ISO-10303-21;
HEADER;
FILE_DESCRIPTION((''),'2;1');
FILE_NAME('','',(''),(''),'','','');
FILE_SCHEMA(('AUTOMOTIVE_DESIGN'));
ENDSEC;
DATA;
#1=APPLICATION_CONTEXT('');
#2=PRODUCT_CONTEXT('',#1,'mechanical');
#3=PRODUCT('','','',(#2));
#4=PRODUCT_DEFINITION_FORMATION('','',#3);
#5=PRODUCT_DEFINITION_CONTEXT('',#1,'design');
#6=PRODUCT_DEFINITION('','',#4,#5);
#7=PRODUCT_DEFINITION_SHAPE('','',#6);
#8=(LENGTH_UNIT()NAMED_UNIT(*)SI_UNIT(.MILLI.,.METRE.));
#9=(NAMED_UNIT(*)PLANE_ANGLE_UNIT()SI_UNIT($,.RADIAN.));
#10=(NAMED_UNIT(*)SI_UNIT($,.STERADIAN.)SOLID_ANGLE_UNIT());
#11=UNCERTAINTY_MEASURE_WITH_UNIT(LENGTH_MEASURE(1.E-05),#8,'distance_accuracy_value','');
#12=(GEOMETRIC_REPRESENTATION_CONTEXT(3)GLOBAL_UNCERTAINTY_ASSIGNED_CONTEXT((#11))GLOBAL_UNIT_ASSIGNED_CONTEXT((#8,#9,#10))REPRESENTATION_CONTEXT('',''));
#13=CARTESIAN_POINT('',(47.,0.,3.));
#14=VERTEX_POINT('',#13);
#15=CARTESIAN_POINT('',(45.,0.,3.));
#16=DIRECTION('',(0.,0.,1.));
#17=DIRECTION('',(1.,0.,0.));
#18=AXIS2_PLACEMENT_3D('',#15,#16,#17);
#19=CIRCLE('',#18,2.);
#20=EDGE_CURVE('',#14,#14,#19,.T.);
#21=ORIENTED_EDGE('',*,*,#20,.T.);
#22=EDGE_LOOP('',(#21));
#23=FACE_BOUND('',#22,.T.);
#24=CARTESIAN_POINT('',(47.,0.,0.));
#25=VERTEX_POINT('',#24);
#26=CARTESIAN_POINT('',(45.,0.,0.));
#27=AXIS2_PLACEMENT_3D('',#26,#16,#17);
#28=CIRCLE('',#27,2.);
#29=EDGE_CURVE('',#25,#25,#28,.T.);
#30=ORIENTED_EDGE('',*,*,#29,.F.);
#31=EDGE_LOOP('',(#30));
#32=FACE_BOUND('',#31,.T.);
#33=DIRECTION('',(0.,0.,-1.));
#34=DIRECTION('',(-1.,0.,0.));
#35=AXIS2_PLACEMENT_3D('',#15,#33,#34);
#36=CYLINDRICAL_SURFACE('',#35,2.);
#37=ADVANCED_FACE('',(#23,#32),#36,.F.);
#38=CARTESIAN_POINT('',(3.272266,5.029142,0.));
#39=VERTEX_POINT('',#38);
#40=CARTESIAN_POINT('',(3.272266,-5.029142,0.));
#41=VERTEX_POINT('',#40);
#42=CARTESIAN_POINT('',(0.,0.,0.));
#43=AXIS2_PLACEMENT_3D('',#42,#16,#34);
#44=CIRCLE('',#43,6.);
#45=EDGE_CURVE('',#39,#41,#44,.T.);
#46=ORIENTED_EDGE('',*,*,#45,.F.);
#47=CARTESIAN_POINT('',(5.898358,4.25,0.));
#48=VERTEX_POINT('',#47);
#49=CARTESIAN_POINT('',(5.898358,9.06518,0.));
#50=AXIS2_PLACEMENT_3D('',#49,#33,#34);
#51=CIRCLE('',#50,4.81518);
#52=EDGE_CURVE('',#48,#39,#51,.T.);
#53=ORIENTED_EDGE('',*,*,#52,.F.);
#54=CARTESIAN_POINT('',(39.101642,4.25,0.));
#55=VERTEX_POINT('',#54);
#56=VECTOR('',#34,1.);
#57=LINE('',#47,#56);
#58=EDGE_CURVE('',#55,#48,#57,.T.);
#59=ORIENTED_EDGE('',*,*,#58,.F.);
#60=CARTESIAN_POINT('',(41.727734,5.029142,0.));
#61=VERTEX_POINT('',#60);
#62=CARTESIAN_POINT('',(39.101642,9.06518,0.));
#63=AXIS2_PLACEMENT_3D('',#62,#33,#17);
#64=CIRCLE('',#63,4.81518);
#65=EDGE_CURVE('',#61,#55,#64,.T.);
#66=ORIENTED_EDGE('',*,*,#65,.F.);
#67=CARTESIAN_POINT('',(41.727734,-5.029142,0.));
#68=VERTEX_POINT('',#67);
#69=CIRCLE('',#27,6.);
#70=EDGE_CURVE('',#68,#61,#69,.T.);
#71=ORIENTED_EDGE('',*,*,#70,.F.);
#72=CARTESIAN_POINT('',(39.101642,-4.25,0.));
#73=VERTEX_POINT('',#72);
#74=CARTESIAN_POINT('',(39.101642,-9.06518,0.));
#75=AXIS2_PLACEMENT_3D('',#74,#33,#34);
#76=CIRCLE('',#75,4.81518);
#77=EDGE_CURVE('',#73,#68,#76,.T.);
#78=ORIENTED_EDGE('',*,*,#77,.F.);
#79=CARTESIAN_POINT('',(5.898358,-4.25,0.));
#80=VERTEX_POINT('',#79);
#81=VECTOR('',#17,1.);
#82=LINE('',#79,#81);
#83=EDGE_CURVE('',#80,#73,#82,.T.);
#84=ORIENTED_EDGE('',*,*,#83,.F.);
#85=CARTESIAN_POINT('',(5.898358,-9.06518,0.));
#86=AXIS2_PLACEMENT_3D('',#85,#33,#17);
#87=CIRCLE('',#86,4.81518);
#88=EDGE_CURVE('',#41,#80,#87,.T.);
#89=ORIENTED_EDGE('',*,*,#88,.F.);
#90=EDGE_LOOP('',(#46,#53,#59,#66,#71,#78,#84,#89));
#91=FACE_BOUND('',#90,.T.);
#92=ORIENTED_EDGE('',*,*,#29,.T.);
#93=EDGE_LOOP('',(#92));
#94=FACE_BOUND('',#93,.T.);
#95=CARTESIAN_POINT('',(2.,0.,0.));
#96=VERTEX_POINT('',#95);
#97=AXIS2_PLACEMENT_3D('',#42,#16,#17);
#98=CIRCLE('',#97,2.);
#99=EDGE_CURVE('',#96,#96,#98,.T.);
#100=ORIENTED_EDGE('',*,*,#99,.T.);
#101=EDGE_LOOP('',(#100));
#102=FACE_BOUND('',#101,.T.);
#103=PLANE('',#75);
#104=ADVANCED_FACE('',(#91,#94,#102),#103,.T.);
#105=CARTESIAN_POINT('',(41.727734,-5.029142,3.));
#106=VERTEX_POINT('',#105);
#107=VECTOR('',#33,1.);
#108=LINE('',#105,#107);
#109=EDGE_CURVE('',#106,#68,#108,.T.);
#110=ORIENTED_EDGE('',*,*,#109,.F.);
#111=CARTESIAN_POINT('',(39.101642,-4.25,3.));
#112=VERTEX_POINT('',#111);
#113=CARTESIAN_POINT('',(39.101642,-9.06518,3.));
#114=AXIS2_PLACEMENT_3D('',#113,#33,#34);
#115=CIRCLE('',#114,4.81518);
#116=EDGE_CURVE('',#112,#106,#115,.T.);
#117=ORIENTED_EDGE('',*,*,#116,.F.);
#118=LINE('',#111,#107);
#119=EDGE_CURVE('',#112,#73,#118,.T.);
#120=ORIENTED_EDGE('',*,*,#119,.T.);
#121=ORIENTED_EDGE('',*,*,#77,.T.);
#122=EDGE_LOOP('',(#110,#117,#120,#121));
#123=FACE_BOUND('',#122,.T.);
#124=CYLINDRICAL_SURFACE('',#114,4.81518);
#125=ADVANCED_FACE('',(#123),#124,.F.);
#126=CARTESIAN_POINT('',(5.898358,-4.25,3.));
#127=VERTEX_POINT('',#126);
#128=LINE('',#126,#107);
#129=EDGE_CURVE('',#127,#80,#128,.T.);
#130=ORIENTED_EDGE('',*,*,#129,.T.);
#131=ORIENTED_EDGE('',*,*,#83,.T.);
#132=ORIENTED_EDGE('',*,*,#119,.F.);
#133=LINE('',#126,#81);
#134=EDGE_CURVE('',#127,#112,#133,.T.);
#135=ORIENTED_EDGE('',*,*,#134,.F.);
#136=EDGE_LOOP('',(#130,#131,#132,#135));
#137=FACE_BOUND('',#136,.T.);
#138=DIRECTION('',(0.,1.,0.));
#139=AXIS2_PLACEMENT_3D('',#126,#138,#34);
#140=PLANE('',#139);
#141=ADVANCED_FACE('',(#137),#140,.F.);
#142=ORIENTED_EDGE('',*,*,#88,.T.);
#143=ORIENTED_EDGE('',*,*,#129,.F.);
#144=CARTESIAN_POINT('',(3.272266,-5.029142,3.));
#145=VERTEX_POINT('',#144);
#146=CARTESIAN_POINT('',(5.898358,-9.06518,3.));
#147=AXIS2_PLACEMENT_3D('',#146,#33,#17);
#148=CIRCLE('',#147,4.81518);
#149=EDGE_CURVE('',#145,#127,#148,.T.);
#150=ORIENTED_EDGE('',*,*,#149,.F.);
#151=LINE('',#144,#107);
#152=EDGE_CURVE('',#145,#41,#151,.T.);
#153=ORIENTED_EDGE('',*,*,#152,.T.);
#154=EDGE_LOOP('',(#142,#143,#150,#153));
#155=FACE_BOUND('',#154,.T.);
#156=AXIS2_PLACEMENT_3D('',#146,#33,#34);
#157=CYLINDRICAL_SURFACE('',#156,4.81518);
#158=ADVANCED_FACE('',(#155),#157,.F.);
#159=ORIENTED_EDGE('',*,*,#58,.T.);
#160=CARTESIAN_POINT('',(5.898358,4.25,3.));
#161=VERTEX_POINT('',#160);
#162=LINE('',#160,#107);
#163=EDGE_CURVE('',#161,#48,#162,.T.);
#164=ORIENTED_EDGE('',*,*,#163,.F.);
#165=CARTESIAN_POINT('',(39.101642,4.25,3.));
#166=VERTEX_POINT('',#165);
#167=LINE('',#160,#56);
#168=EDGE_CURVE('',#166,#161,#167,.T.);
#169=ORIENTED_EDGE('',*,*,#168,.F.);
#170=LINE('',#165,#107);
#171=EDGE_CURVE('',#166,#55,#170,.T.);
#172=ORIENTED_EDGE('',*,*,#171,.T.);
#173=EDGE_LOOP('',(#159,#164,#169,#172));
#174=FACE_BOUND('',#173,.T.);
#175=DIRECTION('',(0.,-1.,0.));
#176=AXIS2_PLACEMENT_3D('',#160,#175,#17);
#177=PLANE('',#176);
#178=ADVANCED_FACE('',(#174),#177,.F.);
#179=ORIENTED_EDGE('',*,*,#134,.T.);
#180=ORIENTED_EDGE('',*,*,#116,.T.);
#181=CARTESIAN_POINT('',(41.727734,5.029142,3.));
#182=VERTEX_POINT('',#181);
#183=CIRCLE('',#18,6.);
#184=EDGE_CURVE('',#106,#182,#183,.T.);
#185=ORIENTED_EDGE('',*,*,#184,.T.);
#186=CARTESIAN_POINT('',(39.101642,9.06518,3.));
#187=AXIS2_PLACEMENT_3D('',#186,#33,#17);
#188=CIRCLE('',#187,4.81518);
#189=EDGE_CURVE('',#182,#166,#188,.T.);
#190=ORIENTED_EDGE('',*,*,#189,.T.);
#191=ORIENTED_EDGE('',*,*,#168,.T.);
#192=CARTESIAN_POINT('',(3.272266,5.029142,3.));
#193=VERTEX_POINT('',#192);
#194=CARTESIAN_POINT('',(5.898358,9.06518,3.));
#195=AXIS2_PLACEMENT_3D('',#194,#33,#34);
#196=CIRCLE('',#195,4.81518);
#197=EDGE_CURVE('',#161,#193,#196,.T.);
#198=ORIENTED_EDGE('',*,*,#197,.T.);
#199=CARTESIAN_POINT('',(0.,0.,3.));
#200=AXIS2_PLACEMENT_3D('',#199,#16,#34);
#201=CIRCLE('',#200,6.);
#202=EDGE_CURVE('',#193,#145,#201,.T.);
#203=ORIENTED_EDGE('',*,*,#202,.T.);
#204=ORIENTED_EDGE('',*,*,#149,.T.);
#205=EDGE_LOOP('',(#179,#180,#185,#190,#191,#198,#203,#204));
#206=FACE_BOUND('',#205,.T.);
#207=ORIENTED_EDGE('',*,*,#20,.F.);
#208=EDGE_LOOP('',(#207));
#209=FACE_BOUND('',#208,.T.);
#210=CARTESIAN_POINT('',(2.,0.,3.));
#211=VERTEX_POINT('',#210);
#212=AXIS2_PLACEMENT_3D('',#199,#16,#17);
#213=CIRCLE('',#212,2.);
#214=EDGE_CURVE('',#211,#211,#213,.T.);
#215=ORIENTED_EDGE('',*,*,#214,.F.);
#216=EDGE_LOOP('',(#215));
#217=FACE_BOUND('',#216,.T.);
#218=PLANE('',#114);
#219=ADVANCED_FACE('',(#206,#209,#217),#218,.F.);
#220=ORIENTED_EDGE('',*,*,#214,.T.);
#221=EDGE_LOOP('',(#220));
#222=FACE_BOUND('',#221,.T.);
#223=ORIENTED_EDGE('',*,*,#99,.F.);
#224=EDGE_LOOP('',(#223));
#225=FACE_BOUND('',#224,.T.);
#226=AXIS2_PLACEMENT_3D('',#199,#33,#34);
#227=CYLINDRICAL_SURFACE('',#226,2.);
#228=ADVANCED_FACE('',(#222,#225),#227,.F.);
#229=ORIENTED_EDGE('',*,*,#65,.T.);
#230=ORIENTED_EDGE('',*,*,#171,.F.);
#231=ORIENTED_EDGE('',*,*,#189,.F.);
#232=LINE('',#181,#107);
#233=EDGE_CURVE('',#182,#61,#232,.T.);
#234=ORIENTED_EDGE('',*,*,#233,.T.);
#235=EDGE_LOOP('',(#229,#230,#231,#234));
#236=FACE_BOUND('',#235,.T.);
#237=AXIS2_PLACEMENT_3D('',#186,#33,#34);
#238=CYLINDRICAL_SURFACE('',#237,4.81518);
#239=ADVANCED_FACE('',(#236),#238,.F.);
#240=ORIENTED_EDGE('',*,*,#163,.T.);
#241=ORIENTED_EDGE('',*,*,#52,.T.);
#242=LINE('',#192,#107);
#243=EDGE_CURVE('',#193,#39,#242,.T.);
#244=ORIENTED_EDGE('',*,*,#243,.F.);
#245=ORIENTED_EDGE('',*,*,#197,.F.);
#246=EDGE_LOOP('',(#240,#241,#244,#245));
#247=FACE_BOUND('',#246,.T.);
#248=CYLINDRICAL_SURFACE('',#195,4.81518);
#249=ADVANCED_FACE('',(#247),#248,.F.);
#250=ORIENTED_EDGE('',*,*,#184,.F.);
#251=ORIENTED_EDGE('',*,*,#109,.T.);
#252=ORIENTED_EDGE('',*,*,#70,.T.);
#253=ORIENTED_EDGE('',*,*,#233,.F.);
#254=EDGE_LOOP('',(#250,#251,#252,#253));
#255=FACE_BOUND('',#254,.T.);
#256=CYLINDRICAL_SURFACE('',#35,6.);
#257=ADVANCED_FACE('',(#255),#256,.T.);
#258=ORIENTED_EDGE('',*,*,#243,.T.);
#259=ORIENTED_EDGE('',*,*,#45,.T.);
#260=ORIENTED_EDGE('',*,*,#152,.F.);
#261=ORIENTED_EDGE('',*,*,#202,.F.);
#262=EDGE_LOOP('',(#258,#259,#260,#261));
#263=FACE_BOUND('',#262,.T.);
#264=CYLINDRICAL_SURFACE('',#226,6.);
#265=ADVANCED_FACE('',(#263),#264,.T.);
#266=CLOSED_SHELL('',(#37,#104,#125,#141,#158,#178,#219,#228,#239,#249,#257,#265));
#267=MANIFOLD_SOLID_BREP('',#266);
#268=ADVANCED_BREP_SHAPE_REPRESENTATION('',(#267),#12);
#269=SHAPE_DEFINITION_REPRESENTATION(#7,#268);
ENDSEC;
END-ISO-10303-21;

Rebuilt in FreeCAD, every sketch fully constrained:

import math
import FreeCAD as App
import Part
import Sketcher

V = App.Vector
Q = App.Units.Quantity

doc = App.newDocument("Part")
params = doc.addObject("Spreadsheet::Sheet", "Params")
for row, (alias, value) in enumerate([
    ("sketch1_diameter", "4 mm"),
    ("sketch1_radius", "6 mm"),
    ("pad1_length", "3 mm"),
], start=1):
    params.set(f"A{row}", alias)
    params.set(f"B{row}", "=" + value)
    params.setAlias(f"B{row}", alias)

body = doc.addObject("PartDesign::Body", "Body")

sketch1 = body.newObject("Sketcher::SketchObject", "Sketch")
sketch1.AttachmentSupport = (doc.getObject("XY_Plane"), [""])
sketch1.MapMode = "FlatFace"
sketch1.addGeometry(Part.LineSegment(V(39.1, 4.2, 0), V(5.9, 4.2, 0)), False)
sketch1.addGeometry(Part.ArcOfCircle(Part.Circle(V(5.9, 9.1, 0), V(0, 0, 1), 4.8), math.radians(-123), math.radians(-90)), False)
sketch1.addGeometry(Part.ArcOfCircle(Part.Circle(V(0, 0, 0), V(0, 0, 1), 6), math.radians(57), math.radians(303)), False)
sketch1.addGeometry(Part.ArcOfCircle(Part.Circle(V(5.9, -9.1, 0), V(0, 0, 1), 4.8), math.radians(90), math.radians(123)), False)
sketch1.addGeometry(Part.LineSegment(V(5.9, -4.2, 0), V(39.1, -4.2, 0)), False)
sketch1.addGeometry(Part.ArcOfCircle(Part.Circle(V(39.1, -9.1, 0), V(0, 0, 1), 4.8), math.radians(57), math.radians(90)), False)
sketch1.addGeometry(Part.ArcOfCircle(Part.Circle(V(45, 0, 0), V(0, 0, 1), 6), math.radians(-123), math.radians(123)), False)
sketch1.addGeometry(Part.ArcOfCircle(Part.Circle(V(39.1, 9.1, 0), V(0, 0, 1), 4.8), math.radians(-90), math.radians(-57)), False)
sketch1.addGeometry(Part.Circle(V(45, 0, 0), V(0, 0, 1), 2), False)
sketch1.addGeometry(Part.Circle(V(0, 0, 0), V(0, 0, 1), 2), False)
sketch1.addConstraint(Sketcher.Constraint("Tangent", 0, 2, 1, 2))
sketch1.addConstraint(Sketcher.Constraint("Tangent", 1, 1, 2, 1))
sketch1.addConstraint(Sketcher.Constraint("Tangent", 2, 2, 3, 2))
sketch1.addConstraint(Sketcher.Constraint("Tangent", 3, 1, 4, 1))
sketch1.addConstraint(Sketcher.Constraint("Tangent", 4, 2, 5, 2))
sketch1.addConstraint(Sketcher.Constraint("Tangent", 5, 1, 6, 1))
sketch1.addConstraint(Sketcher.Constraint("Tangent", 6, 2, 7, 2))
sketch1.addConstraint(Sketcher.Constraint("Tangent", 7, 1, 0, 1))
sketch1.addConstraint(Sketcher.Constraint("Horizontal", 0))
sketch1.addConstraint(Sketcher.Constraint("Horizontal", 4))
sketch1.addConstraint(Sketcher.Constraint("Coincident", 2, 3, -1, 1))
sketch1.addConstraint(Sketcher.Constraint("Coincident", 9, 3, -1, 1))
sketch1.addConstraint(Sketcher.Constraint("Coincident", 8, 3, 6, 3))
sketch1.addConstraint(Sketcher.Constraint("Equal", 1, 3))
sketch1.addConstraint(Sketcher.Constraint("Equal", 3, 5))
sketch1.addConstraint(Sketcher.Constraint("Equal", 2, 6))
sketch1.addConstraint(Sketcher.Constraint("Equal", 5, 7))
sketch1.addConstraint(Sketcher.Constraint("Equal", 8, 9))
sketch1.addConstraint(Sketcher.Constraint("Symmetric", 5, 3, 7, 3, -1))
sketch1.addConstraint(Sketcher.Constraint("Diameter", 8, Q("4 mm")))
sketch1.addConstraint(Sketcher.Constraint("Radius", 2, Q("6 mm")))
sketch1.addConstraint(Sketcher.Constraint("DistanceX", -1, 1, 6, 3, Q("45 mm")))
sketch1.addConstraint(Sketcher.Constraint("DistanceY", 3, 1, 0, 2, Q("8.5 mm")))
sketch1.addConstraint(Sketcher.Constraint("Radius", 1, Q("4.81518 mm")))
sketch1.setExpression("Constraints[19]", "Params.sketch1_diameter")
sketch1.setExpression("Constraints[20]", "Params.sketch1_radius")
pad1 = body.newObject("PartDesign::Pad", "Pad")
pad1.Profile = sketch1
pad1.setExpression("Length", "Params.pad1_length")

doc.recompute()
